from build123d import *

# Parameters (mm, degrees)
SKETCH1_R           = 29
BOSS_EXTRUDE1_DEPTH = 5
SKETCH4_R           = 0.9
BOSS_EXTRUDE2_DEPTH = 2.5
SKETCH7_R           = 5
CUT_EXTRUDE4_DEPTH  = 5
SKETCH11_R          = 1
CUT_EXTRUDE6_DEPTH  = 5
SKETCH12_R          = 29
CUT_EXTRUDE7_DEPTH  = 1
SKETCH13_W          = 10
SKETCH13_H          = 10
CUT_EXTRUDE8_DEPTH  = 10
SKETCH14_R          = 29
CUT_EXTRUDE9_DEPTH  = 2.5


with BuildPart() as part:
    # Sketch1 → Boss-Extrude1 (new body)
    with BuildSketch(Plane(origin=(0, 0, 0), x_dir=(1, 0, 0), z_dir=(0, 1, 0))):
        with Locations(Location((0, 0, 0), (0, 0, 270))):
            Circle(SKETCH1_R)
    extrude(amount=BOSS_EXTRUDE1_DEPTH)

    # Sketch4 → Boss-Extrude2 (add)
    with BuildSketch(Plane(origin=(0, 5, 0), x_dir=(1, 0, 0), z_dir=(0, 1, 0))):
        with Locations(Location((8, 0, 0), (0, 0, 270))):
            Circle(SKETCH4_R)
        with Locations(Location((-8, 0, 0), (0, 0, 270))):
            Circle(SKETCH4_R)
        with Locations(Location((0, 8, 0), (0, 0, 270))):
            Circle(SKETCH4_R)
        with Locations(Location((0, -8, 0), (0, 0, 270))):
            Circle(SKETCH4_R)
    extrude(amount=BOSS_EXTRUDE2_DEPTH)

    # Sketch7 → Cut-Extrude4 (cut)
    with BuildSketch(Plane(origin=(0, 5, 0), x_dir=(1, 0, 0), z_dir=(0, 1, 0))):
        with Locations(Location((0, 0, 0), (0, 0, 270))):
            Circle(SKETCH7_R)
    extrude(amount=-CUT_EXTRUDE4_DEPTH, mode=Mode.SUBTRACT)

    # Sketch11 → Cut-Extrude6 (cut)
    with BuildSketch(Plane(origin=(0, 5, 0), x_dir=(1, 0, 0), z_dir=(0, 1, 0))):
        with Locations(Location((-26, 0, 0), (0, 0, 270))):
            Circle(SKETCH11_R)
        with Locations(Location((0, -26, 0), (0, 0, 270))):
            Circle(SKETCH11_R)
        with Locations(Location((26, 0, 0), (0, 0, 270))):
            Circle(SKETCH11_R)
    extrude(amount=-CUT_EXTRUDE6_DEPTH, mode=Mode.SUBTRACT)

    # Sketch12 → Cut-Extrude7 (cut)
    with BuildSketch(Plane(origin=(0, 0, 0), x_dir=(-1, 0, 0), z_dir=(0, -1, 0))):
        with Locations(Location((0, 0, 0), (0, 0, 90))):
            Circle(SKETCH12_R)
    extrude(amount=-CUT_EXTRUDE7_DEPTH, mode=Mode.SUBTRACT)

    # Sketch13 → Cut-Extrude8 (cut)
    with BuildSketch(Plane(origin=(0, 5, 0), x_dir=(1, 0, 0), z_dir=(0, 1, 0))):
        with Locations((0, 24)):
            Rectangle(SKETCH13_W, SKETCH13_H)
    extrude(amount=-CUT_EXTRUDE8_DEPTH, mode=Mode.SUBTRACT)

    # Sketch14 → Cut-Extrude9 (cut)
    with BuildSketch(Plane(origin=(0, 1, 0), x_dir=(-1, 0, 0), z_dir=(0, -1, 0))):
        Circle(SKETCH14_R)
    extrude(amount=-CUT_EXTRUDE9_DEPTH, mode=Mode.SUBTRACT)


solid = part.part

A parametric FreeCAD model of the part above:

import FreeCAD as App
import Part
import Sketcher

doc = App.newDocument("Part")
body = doc.addObject("PartDesign::Body", "Body")

# Sketch on XZ plane
sketch1 = body.newObject("Sketcher::SketchObject", "Sketch")
sketch1.AttachmentSupport = (doc.getObject("XZ_Plane"), [""])
sketch1.MapMode = "FlatFace"
sketch1.addGeometry(Part.Circle(App.Vector(0, 0, 0), App.Vector(0, 0, 1), 29), False)
sketch1.addConstraint([
    Sketcher.Constraint("Coincident", 0, 3, -1, 1),
    Sketcher.Constraint("Diameter", 0, 58.0),
])
pad1 = body.newObject("PartDesign::Pad", "Pad")
pad1.Profile = sketch1
pad1.Length = 5
pad1.Reversed = True

# Sketch on XZ plane
sketch2 = body.newObject("Sketcher::SketchObject", "Sketch001")
sketch2.AttachmentSupport = (doc.getObject("XZ_Plane"), [""])
sketch2.MapMode = "FlatFace"
sketch2.AttachmentOffset = App.Placement(App.Vector(0, 0, -5), App.Rotation())
sketch2.addGeometry([
    Part.Circle(App.Vector(8, 0, 0), App.Vector(0, 0, 1), 0.9),
    Part.Circle(App.Vector(-8, 0, 0), App.Vector(0, 0, 1), 0.9),
    Part.Circle(App.Vector(0, -8, 0), App.Vector(0, 0, 1), 0.9),
    Part.Circle(App.Vector(0, 8, 0), App.Vector(0, 0, 1), 0.9),
], False)
sketch2.addConstraint([
    Sketcher.Constraint("Equal", 0, 1),
    Sketcher.Constraint("Equal", 1, 2),
    Sketcher.Constraint("Equal", 2, 3),
    Sketcher.Constraint("Symmetric", 0, 3, 1, 3, -1, 1),
    Sketcher.Constraint("Symmetric", 2, 3, 3, 3, -1, 1),
    Sketcher.Constraint("PointOnObject", 0, 3, -1),
    Sketcher.Constraint("PointOnObject", 2, 3, -2),
    Sketcher.Constraint("Diameter", 0, 1.8),
    Sketcher.Constraint("DistanceX", -1, 1, 0, 3, 8.0),
    Sketcher.Constraint("DistanceY", 2, 3, -1, 1, 8.0),
])
pad2 = body.newObject("PartDesign::Pad", "Pad001")
pad2.Profile = sketch2
pad2.Length = 2.5
pad2.Reversed = True

# Sketch on XZ plane
sketch3 = body.newObject("Sketcher::SketchObject", "Sketch002")
sketch3.AttachmentSupport = (doc.getObject("XZ_Plane"), [""])
sketch3.MapMode = "FlatFace"
sketch3.AttachmentOffset = App.Placement(App.Vector(0, 0, -5), App.Rotation())
sketch3.addGeometry(Part.Circle(App.Vector(0, 0, 0), App.Vector(0, 0, 1), 5), False)
sketch3.addConstraint([
    Sketcher.Constraint("Coincident", 0, 3, -1, 1),
    Sketcher.Constraint("Diameter", 0, 10.0),
])
pocket1 = body.newObject("PartDesign::Pocket", "Pocket")
pocket1.Profile = sketch3
pocket1.Length = 5
pocket1.Reversed = True

# Sketch on XZ plane
sketch4 = body.newObject("Sketcher::SketchObject", "Sketch003")
sketch4.AttachmentSupport = (doc.getObject("XZ_Plane"), [""])
sketch4.MapMode = "FlatFace"
sketch4.AttachmentOffset = App.Placement(App.Vector(0, 0, -5), App.Rotation())
sketch4.addGeometry([
    Part.Circle(App.Vector(-26, 0, 0), App.Vector(0, 0, 1), 1),
    Part.Circle(App.Vector(0, 26, 0), App.Vector(0, 0, 1), 1),
    Part.Circle(App.Vector(26, 0, 0), App.Vector(0, 0, 1), 1),
], False)
sketch4.addConstraint([
    Sketcher.Constraint("Equal", 0, 1),
    Sketcher.Constraint("Equal", 1, 2),
    Sketcher.Constraint("Symmetric", 0, 3, 2, 3, -1, 1),
    Sketcher.Constraint("PointOnObject", 0, 3, -1),
    Sketcher.Constraint("PointOnObject", 1, 3, -2),
    Sketcher.Constraint("Diameter", 0, 2.0),
    Sketcher.Constraint("DistanceX", 0, 3, -1, 1, 26.0),
    Sketcher.Constraint("DistanceY", -1, 1, 1, 3, 26.0),
])
pocket2 = body.newObject("PartDesign::Pocket", "Pocket001")
pocket2.Profile = sketch4
pocket2.Length = 5
pocket2.Reversed = True

# Sketch on XZ plane
sketch5 = body.newObject("Sketcher::SketchObject", "Sketch004")
sketch5.AttachmentSupport = (doc.getObject("XZ_Plane"), [""])
sketch5.MapMode = "FlatFace"
sketch5.addGeometry(Part.Circle(App.Vector(0, 0, 0), App.Vector(0, 0, 1), 29), False)
sketch5.addConstraint([
    Sketcher.Constraint("Coincident", 0, 3, -1, 1),
    Sketcher.Constraint("Diameter", 0, 58.0),
])
pocket3 = body.newObject("PartDesign::Pocket", "Pocket002")
pocket3.Profile = sketch5
pocket3.Length = 1

# Sketch on XZ plane
sketch6 = body.newObject("Sketcher::SketchObject", "Sketch005")
sketch6.AttachmentSupport = (doc.getObject("XZ_Plane"), [""])
sketch6.MapMode = "FlatFace"
sketch6.AttachmentOffset = App.Placement(App.Vector(0, 0, -5), App.Rotation())
sketch6.addGeometry([
    Part.LineSegment(App.Vector(-5, -29, 0), App.Vector(-5, -19, 0)),
    Part.LineSegment(App.Vector(-5, -19, 0), App.Vector(5, -19, 0)),
    Part.LineSegment(App.Vector(5, -19, 0), App.Vector(5, -29, 0)),
    Part.LineSegment(App.Vector(5, -29, 0), App.Vector(-5, -29, 0)),
], False)
sketch6.addConstraint([
    Sketcher.Constraint("Coincident", 0, 2, 1, 1),
    Sketcher.Constraint("Coincident", 1, 2, 2, 1),
    Sketcher.Constraint("Coincident", 2, 2, 3, 1),
    Sketcher.Constraint("Coincident", 3, 2, 0, 1),
    Sketcher.Constraint("Vertical", 0),
    Sketcher.Constraint("Horizontal", 1),
    Sketcher.Constraint("Vertical", 2),
    Sketcher.Constraint("Horizontal", 3),
    Sketcher.Constraint("Equal", 3, 0),
    Sketcher.Constraint("DistanceX", 1, 1, 1, 2, 10.0),
    Sketcher.Constraint("DistanceX", 0, 2, -1, 1, 5.0),
    Sketcher.Constraint("DistanceY", 0, 2, -1, 1, 19.0),
])
pocket4 = body.newObject("PartDesign::Pocket", "Pocket003")
pocket4.Profile = sketch6
pocket4.Length = 10
pocket4.Reversed = True

# Sketch on XZ plane
sketch7 = body.newObject("Sketcher::SketchObject", "Sketch006")
sketch7.AttachmentSupport = (doc.getObject("XZ_Plane"), [""])
sketch7.MapMode = "FlatFace"
sketch7.AttachmentOffset = App.Placement(App.Vector(0, 0, -1), App.Rotation())
sketch7.addGeometry(Part.Circle(App.Vector(0, 0, 0), App.Vector(0, 0, 1), 29), False)
sketch7.addConstraint([
    Sketcher.Constraint("Coincident", 0, 3, -1, 1),
    Sketcher.Constraint("Diameter", 0, 58.0),
])
pocket5 = body.newObject("PartDesign::Pocket", "Pocket004")
pocket5.Profile = sketch7
pocket5.Length = 2.5

doc.recompute()
